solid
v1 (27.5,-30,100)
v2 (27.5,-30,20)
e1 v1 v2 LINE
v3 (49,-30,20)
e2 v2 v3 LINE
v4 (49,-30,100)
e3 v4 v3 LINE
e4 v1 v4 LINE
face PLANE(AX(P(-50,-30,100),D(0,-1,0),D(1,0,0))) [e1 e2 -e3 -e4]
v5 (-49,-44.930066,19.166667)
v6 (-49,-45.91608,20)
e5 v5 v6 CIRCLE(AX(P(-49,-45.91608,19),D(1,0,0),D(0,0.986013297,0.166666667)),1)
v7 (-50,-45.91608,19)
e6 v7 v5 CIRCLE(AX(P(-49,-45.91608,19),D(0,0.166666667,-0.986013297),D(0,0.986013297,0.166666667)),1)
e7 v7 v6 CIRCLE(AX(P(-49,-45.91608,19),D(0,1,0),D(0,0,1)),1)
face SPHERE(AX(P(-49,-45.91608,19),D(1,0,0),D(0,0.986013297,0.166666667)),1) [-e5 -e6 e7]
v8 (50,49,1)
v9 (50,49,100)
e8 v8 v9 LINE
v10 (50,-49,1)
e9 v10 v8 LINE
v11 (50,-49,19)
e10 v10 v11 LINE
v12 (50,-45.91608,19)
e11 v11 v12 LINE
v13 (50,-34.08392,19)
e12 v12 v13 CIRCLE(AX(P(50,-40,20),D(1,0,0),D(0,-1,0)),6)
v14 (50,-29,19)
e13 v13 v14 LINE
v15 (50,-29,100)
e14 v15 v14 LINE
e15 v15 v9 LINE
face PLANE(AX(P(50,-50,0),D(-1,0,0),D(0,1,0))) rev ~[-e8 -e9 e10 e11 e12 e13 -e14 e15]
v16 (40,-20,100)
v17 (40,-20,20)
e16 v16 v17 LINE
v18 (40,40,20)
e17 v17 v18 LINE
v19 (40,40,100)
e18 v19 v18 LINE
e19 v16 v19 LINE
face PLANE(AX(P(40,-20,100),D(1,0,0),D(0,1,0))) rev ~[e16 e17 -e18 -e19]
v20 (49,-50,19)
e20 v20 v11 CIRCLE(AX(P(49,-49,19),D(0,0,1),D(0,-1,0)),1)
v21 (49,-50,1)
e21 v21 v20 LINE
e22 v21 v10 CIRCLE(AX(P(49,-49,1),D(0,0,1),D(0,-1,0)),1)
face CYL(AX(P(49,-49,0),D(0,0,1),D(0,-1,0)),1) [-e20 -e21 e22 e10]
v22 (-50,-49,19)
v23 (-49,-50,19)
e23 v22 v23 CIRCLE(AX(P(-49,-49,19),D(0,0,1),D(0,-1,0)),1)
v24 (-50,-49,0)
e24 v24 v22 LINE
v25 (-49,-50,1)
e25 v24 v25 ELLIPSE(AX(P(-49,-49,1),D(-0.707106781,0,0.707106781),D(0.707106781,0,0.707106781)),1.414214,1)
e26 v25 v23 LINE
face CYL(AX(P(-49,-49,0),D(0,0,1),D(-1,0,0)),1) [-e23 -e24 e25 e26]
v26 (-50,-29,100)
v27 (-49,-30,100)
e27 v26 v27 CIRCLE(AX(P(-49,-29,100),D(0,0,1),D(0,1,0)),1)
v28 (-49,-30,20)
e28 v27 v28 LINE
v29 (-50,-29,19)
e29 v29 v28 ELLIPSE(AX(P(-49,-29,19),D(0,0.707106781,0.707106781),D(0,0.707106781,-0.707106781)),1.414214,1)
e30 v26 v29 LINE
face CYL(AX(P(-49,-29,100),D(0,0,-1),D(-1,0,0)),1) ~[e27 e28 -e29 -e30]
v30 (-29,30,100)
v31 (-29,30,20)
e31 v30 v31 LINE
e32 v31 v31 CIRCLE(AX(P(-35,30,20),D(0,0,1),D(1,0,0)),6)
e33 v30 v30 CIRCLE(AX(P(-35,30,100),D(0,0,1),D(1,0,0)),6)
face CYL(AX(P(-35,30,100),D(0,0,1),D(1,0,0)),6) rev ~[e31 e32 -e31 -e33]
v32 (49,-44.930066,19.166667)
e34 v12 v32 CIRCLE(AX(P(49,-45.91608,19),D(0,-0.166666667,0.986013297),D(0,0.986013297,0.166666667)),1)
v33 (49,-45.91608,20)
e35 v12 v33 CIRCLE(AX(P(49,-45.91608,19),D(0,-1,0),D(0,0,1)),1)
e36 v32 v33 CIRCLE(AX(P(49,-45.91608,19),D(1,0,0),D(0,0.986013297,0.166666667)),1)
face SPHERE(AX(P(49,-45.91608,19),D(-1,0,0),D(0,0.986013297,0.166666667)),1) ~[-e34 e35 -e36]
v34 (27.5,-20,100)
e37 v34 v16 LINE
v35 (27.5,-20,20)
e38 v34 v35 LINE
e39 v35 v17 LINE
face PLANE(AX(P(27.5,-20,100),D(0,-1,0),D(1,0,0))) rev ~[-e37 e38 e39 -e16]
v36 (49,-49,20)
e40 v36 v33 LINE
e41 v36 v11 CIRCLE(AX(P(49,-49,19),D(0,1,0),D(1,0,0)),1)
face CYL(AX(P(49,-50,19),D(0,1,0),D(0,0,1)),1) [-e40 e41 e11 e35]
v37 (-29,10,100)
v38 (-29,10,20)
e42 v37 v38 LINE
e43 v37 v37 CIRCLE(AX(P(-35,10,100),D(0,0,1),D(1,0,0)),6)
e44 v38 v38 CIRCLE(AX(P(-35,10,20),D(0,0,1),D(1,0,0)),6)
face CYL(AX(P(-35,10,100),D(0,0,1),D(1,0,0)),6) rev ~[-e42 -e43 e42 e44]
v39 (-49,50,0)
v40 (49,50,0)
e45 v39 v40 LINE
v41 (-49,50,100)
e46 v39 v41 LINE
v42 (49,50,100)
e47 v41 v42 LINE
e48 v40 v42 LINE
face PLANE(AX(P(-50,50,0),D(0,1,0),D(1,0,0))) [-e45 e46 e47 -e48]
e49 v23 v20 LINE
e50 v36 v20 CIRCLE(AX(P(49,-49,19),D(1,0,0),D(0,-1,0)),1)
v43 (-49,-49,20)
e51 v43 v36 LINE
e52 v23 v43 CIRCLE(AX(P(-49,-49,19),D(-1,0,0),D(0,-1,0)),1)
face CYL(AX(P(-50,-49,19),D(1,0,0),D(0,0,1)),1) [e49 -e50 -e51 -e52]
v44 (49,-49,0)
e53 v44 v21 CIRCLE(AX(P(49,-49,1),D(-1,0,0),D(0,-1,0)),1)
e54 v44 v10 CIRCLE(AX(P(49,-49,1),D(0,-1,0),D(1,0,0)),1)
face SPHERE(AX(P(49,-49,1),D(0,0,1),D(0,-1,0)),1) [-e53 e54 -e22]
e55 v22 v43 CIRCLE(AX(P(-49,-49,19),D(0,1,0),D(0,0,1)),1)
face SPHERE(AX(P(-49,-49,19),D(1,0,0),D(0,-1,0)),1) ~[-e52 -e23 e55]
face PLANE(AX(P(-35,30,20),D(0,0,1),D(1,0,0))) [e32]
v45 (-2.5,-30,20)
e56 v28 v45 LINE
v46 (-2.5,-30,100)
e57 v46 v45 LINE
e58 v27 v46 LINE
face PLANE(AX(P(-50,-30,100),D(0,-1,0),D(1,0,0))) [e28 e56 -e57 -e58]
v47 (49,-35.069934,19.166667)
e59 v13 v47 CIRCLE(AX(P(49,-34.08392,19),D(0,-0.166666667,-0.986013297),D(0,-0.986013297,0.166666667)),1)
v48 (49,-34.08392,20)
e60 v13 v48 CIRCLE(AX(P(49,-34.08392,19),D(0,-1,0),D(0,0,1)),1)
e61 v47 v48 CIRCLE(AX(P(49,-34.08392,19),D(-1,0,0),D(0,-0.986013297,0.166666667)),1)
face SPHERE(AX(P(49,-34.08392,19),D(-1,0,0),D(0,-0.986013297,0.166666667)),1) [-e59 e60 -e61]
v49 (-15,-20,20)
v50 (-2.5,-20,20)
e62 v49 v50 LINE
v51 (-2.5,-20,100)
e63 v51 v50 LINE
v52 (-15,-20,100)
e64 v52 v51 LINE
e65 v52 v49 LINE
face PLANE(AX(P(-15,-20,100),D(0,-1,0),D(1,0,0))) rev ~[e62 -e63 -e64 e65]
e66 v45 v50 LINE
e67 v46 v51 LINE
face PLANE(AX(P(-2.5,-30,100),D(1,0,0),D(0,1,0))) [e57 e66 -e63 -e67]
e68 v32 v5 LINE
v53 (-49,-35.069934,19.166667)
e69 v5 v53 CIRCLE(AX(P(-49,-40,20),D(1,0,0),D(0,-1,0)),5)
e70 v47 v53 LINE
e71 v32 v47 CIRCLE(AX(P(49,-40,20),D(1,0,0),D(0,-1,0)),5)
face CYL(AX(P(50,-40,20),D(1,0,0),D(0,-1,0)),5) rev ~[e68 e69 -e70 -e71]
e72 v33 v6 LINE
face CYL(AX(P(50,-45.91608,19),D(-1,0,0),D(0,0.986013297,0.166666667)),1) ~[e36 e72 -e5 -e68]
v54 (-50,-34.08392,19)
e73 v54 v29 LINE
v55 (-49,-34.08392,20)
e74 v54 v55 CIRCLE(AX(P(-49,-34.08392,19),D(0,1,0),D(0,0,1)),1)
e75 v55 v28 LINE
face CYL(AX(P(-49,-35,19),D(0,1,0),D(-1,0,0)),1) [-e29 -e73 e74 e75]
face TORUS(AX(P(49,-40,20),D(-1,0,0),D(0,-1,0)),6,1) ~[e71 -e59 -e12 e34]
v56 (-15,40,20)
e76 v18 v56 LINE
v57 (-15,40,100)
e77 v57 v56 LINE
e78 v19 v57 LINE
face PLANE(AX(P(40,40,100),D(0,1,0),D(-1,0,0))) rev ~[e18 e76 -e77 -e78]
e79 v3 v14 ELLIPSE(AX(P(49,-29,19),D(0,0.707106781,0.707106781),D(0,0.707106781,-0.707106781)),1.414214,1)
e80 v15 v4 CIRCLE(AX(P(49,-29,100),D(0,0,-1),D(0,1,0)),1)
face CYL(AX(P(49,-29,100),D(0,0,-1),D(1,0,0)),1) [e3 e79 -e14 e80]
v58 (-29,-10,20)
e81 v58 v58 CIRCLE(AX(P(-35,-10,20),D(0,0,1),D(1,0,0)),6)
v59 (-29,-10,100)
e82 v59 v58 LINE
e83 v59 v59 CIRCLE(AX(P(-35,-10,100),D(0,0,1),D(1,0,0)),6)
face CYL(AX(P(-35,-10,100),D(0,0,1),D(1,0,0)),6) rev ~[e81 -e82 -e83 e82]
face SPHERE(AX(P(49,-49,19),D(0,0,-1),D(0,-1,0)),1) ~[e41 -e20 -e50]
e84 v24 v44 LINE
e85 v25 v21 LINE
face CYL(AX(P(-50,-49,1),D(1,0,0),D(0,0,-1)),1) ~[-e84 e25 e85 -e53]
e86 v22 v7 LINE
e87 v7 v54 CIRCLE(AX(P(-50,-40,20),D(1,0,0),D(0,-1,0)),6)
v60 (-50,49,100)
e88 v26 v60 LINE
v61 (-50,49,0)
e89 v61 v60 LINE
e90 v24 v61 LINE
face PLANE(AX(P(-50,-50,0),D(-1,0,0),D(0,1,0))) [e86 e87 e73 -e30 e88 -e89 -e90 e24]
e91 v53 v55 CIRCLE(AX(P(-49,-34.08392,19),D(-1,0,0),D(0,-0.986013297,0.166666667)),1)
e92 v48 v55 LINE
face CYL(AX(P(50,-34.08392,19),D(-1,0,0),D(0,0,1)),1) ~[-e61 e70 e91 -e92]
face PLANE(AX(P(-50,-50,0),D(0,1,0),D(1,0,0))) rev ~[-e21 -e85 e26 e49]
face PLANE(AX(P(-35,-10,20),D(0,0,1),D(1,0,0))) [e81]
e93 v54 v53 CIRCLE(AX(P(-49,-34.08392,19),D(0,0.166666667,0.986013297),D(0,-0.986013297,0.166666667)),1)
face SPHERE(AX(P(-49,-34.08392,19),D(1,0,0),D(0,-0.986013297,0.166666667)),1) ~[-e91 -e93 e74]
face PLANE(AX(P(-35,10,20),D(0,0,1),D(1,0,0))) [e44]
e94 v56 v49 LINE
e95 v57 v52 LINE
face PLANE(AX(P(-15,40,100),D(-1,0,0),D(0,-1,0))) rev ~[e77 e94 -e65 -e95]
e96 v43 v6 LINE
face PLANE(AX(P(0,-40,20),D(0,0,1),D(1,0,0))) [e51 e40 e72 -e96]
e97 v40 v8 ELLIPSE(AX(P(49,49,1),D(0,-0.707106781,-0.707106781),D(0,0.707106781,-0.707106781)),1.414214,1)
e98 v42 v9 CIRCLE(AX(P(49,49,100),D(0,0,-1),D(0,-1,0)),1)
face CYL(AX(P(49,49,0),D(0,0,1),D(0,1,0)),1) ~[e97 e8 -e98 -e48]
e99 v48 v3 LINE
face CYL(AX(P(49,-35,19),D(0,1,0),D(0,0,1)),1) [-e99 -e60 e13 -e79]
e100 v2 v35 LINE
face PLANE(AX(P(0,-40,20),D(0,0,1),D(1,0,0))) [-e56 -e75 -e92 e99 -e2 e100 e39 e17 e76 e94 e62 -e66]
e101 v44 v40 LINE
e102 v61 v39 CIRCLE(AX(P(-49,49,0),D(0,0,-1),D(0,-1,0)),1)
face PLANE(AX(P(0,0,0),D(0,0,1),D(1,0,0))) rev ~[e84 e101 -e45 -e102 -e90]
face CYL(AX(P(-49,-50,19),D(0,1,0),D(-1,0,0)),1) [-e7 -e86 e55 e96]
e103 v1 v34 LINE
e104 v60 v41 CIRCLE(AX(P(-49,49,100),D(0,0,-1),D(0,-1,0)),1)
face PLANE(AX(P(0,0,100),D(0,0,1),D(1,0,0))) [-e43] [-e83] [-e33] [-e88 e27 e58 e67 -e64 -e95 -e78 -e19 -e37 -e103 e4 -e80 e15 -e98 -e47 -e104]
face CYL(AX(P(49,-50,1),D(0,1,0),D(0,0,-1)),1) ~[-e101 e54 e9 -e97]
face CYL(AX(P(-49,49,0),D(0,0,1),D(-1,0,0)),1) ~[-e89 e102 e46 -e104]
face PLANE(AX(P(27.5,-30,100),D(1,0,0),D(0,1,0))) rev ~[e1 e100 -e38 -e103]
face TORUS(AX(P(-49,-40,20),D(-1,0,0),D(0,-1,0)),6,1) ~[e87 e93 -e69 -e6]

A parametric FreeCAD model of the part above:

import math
import FreeCAD as App
import Part
import Sketcher

V = App.Vector
Q = App.Units.Quantity


def edges_at(feature, points):
    """Names of the edges that pass closest to the given points."""
    edges = feature.Shape.Edges
    near = lambda p: min(range(len(edges)), key=lambda i: edges[i].distToShape(Part.Vertex(*p))[0])
    return sorted({f"Edge{near(p) + 1}" for p in points})

doc = App.newDocument("Part")
body = doc.addObject("PartDesign::Body", "Body")

# Sketch on XY plane
sketch1 = body.newObject("Sketcher::SketchObject", "Sketch")
sketch1.AttachmentSupport = (doc.getObject("XY_Plane"), [""])
sketch1.MapMode = "FlatFace"
sketch1.addGeometry([
    Part.LineSegment(V(-50, 50, 0), V(-50, -50, 0)),
    Part.LineSegment(V(-50, -50, 0), V(50, -50, 0)),
    Part.LineSegment(V(50, -50, 0), V(50, 50, 0)),
    Part.LineSegment(V(50, 50, 0), V(-50, 50, 0)),
], False)
sketch1.addConstraint([
    Sketcher.Constraint("Coincident", 0, 2, 1, 1),
    Sketcher.Constraint("Coincident", 1, 2, 2, 1),
    Sketcher.Constraint("Coincident", 2, 2, 3, 1),
    Sketcher.Constraint("Coincident", 3, 2, 0, 1),
    Sketcher.Constraint("Vertical", 0),
    Sketcher.Constraint("Horizontal", 1),
    Sketcher.Constraint("Vertical", 2),
    Sketcher.Constraint("Horizontal", 3),
    Sketcher.Constraint("Symmetric", 0, 2, 2, 2, -1, 1),
    Sketcher.Constraint("Equal", 3, 0),
    Sketcher.Constraint("DistanceX", 1, 1, 1, 2, Q("100 mm")),
])
pad1 = body.newObject("PartDesign::Pad", "Pad")
pad1.Profile = sketch1
pad1.Length = 100

# Sketch on XY plane
sketch2 = body.newObject("Sketcher::SketchObject", "Sketch001")
sketch2.AttachmentSupport = (doc.getObject("XY_Plane"), [""])
sketch2.MapMode = "FlatFace"
sketch2.AttachmentOffset = App.Placement(V(0, 0, 100), App.Rotation())
sketch2.addGeometry([
    Part.LineSegment(V(-50, -30, 0), V(-50, -50, 0)),
    Part.LineSegment(V(-50, -50, 0), V(50, -50, 0)),
    Part.LineSegment(V(50, -50, 0), V(50, -30, 0)),
    Part.LineSegment(V(50, -30, 0), V(-50, -30, 0)),
], False)
sketch2.addConstraint([
    Sketcher.Constraint("Coincident", 0, 2, 1, 1),
    Sketcher.Constraint("Coincident", 1, 2, 2, 1),
    Sketcher.Constraint("Coincident", 2, 2, 3, 1),
    Sketcher.Constraint("Coincident", 3, 2, 0, 1),
    Sketcher.Constraint("Vertical", 0),
    Sketcher.Constraint("Horizontal", 1),
    Sketcher.Constraint("Vertical", 2),
    Sketcher.Constraint("Horizontal", 3),
    Sketcher.Constraint("DistanceX", 1, 1, 1, 2, Q("100 mm")),
    Sketcher.Constraint("DistanceY", 0, 2, 0, 1, Q("20 mm")),
    Sketcher.Constraint("DistanceX", 0, 2, -1, 1, Q("50 mm")),
    Sketcher.Constraint("DistanceY", 0, 2, -1, 1, Q("50 mm")),
])
pocket1 = body.newObject("PartDesign::Pocket", "Pocket")
pocket1.Profile = sketch2
pocket1.Length = 80

# Sketch on XY plane
sketch3 = body.newObject("Sketcher::SketchObject", "Sketch002")
sketch3.AttachmentSupport = (doc.getObject("XY_Plane"), [""])
sketch3.MapMode = "FlatFace"
sketch3.AttachmentOffset = App.Placement(V(0, 0, 100), App.Rotation())
sketch3.addGeometry([
    Part.LineSegment(V(40, 40, 0), V(-15, 40, 0)),  # 0
    Part.LineSegment(V(-15, 40, 0), V(-15, -20, 0)),  # 1
    Part.LineSegment(V(-15, -20, 0), V(-2, -20, 0)),  # 2
    Part.LineSegment(V(-2, -20, 0), V(-2, -30, 0)),  # 3
    Part.LineSegment(V(-2, -30, 0), V(28, -30, 0)),  # 4
    Part.LineSegment(V(28, -30, 0), V(28, -20, 0)),  # 5
    Part.LineSegment(V(28, -20, 0), V(40, -20, 0)),  # 6
    Part.LineSegment(V(40, -20, 0), V(40, 40, 0)),  # 7
], False)
sketch3.addConstraint([
    Sketcher.Constraint("Coincident", 0, 2, 1, 1),
    Sketcher.Constraint("Coincident", 1, 2, 2, 1),
    Sketcher.Constraint("Coincident", 2, 2, 3, 1),
    Sketcher.Constraint("Coincident", 3, 2, 4, 1),
    Sketcher.Constraint("Coincident", 4, 2, 5, 1),
    Sketcher.Constraint("Coincident", 5, 2, 6, 1),
    Sketcher.Constraint("Coincident", 6, 2, 7, 1),
    Sketcher.Constraint("Coincident", 7, 2, 0, 1),
    Sketcher.Constraint("Horizontal", 0),
    Sketcher.Constraint("Vertical", 1),
    Sketcher.Constraint("Horizontal", 2),
    Sketcher.Constraint("Vertical", 3),
    Sketcher.Constraint("Horizontal", 4),
    Sketcher.Constraint("Vertical", 5),
    Sketcher.Constraint("Horizontal", 6),
    Sketcher.Constraint("Vertical", 7),
    Sketcher.Constraint("Horizontal", 2, 2, 5, 2),
    Sketcher.Constraint("Equal", 2, 6),
    Sketcher.Constraint("DistanceX", 0, 2, 0, 1, Q("55 mm")),
    Sketcher.Constraint("DistanceX", 4, 1, 4, 2, Q("30 mm")),
    Sketcher.Constraint("DistanceY", 1, 2, 1, 1, Q("60 mm")),
    Sketcher.Constraint("DistanceY", 3, 2, 3, 1, Q("10 mm")),
    Sketcher.Constraint("DistanceX", 0, 2, -1, 1, Q("15 mm")),
    Sketcher.Constraint("DistanceY", -1, 1, 0, 2, Q("40 mm")),
])
pocket2 = body.newObject("PartDesign::Pocket", "Pocket001")
pocket2.Profile = sketch3
pocket2.Length = 80

# Sketch on XY plane
sketch4 = body.newObject("Sketcher::SketchObject", "Sketch003")
sketch4.AttachmentSupport = (doc.getObject("XY_Plane"), [""])
sketch4.MapMode = "FlatFace"
sketch4.AttachmentOffset = App.Placement(V(0, 0, 100), App.Rotation())
sketch4.addGeometry([
    Part.Circle(V(-35, -10, 0), V(0, 0, 1), 6),
    Part.Circle(V(-35, 10, 0), V(0, 0, 1), 6),
    Part.Circle(V(-35, 30, 0), V(0, 0, 1), 6),
], False)
sketch4.addConstraint([
    Sketcher.Constraint("Equal", 0, 1),
    Sketcher.Constraint("Equal", 1, 2),
    Sketcher.Constraint("Symmetric", 0, 3, 1, 3, -1),
    Sketcher.Constraint("Vertical", 1, 3, 2, 3),
    Sketcher.Constraint("Diameter", 0, Q("12 mm")),
    Sketcher.Constraint("DistanceX", 0, 3, -1, 1, Q("35 mm")),
    Sketcher.Constraint("DistanceY", 0, 3, -1, 1, Q("10 mm")),
    Sketcher.Constraint("DistanceY", -1, 1, 2, 3, Q("30 mm")),
])
pocket3 = body.newObject("PartDesign::Pocket", "Pocket002")
pocket3.Profile = sketch4
pocket3.Length = 80

# Sketch on YZ plane
sketch5 = body.newObject("Sketcher::SketchObject", "Sketch004")
sketch5.AttachmentSupport = (doc.getObject("YZ_Plane"), [""])
sketch5.MapMode = "FlatFace"
sketch5.AttachmentOffset = App.Placement(V(0, 0, 50), App.Rotation())
sketch5.addGeometry([
    Part.ArcOfCircle(Part.Circle(V(-40, 20, 0), V(0, 0, 1), 5), math.radians(180), math.radians(360)),
    Part.LineSegment(V(-35, 20, 0), V(-45, 20, 0)),
], False)
sketch5.addConstraint([
    Sketcher.Constraint("Coincident", 0, 1, 1, 2),
    Sketcher.Constraint("Coincident", 1, 1, 0, 2),
    Sketcher.Constraint("Horizontal", 1),
    Sketcher.Constraint("Radius", 0, Q("5 mm")),
    Sketcher.Constraint("DistanceX", 0, 3, -1, 1, Q("40 mm")),
    Sketcher.Constraint("DistanceY", -1, 1, 0, 3, Q("20 mm")),
    Sketcher.Constraint("DistanceY", -1, 1, 0, 1, Q("20 mm")),
])
pocket4 = body.newObject("PartDesign::Pocket", "Pocket003")
pocket4.Profile = sketch5
pocket4.Type = "ThroughAll"
doc.recompute()

fillet = body.newObject("PartDesign::Fillet", "Fillet")
fillet.Base = (pocket4, edges_at(pocket4, [
    (0, -35, 20),
    (0, -45, 20),
    (50, -50, 10),
    (0, -50, 20),
    (-50, -50, 10),
    (0, -50, 0),
    (50, 0, 0),
    (50, -40, 15),
    (50, -47.5, 20),
    (50, -32.5, 20),
    (50, -30, 60),
    (-50, -40, 15),
    (-50, -47.5, 20),
    (-50, -32.5, 20),
    (50, 50, 50),
    (-50, -30, 60),
    (-50, 50, 50),
]))
fillet.Radius = 1

doc.recompute()
